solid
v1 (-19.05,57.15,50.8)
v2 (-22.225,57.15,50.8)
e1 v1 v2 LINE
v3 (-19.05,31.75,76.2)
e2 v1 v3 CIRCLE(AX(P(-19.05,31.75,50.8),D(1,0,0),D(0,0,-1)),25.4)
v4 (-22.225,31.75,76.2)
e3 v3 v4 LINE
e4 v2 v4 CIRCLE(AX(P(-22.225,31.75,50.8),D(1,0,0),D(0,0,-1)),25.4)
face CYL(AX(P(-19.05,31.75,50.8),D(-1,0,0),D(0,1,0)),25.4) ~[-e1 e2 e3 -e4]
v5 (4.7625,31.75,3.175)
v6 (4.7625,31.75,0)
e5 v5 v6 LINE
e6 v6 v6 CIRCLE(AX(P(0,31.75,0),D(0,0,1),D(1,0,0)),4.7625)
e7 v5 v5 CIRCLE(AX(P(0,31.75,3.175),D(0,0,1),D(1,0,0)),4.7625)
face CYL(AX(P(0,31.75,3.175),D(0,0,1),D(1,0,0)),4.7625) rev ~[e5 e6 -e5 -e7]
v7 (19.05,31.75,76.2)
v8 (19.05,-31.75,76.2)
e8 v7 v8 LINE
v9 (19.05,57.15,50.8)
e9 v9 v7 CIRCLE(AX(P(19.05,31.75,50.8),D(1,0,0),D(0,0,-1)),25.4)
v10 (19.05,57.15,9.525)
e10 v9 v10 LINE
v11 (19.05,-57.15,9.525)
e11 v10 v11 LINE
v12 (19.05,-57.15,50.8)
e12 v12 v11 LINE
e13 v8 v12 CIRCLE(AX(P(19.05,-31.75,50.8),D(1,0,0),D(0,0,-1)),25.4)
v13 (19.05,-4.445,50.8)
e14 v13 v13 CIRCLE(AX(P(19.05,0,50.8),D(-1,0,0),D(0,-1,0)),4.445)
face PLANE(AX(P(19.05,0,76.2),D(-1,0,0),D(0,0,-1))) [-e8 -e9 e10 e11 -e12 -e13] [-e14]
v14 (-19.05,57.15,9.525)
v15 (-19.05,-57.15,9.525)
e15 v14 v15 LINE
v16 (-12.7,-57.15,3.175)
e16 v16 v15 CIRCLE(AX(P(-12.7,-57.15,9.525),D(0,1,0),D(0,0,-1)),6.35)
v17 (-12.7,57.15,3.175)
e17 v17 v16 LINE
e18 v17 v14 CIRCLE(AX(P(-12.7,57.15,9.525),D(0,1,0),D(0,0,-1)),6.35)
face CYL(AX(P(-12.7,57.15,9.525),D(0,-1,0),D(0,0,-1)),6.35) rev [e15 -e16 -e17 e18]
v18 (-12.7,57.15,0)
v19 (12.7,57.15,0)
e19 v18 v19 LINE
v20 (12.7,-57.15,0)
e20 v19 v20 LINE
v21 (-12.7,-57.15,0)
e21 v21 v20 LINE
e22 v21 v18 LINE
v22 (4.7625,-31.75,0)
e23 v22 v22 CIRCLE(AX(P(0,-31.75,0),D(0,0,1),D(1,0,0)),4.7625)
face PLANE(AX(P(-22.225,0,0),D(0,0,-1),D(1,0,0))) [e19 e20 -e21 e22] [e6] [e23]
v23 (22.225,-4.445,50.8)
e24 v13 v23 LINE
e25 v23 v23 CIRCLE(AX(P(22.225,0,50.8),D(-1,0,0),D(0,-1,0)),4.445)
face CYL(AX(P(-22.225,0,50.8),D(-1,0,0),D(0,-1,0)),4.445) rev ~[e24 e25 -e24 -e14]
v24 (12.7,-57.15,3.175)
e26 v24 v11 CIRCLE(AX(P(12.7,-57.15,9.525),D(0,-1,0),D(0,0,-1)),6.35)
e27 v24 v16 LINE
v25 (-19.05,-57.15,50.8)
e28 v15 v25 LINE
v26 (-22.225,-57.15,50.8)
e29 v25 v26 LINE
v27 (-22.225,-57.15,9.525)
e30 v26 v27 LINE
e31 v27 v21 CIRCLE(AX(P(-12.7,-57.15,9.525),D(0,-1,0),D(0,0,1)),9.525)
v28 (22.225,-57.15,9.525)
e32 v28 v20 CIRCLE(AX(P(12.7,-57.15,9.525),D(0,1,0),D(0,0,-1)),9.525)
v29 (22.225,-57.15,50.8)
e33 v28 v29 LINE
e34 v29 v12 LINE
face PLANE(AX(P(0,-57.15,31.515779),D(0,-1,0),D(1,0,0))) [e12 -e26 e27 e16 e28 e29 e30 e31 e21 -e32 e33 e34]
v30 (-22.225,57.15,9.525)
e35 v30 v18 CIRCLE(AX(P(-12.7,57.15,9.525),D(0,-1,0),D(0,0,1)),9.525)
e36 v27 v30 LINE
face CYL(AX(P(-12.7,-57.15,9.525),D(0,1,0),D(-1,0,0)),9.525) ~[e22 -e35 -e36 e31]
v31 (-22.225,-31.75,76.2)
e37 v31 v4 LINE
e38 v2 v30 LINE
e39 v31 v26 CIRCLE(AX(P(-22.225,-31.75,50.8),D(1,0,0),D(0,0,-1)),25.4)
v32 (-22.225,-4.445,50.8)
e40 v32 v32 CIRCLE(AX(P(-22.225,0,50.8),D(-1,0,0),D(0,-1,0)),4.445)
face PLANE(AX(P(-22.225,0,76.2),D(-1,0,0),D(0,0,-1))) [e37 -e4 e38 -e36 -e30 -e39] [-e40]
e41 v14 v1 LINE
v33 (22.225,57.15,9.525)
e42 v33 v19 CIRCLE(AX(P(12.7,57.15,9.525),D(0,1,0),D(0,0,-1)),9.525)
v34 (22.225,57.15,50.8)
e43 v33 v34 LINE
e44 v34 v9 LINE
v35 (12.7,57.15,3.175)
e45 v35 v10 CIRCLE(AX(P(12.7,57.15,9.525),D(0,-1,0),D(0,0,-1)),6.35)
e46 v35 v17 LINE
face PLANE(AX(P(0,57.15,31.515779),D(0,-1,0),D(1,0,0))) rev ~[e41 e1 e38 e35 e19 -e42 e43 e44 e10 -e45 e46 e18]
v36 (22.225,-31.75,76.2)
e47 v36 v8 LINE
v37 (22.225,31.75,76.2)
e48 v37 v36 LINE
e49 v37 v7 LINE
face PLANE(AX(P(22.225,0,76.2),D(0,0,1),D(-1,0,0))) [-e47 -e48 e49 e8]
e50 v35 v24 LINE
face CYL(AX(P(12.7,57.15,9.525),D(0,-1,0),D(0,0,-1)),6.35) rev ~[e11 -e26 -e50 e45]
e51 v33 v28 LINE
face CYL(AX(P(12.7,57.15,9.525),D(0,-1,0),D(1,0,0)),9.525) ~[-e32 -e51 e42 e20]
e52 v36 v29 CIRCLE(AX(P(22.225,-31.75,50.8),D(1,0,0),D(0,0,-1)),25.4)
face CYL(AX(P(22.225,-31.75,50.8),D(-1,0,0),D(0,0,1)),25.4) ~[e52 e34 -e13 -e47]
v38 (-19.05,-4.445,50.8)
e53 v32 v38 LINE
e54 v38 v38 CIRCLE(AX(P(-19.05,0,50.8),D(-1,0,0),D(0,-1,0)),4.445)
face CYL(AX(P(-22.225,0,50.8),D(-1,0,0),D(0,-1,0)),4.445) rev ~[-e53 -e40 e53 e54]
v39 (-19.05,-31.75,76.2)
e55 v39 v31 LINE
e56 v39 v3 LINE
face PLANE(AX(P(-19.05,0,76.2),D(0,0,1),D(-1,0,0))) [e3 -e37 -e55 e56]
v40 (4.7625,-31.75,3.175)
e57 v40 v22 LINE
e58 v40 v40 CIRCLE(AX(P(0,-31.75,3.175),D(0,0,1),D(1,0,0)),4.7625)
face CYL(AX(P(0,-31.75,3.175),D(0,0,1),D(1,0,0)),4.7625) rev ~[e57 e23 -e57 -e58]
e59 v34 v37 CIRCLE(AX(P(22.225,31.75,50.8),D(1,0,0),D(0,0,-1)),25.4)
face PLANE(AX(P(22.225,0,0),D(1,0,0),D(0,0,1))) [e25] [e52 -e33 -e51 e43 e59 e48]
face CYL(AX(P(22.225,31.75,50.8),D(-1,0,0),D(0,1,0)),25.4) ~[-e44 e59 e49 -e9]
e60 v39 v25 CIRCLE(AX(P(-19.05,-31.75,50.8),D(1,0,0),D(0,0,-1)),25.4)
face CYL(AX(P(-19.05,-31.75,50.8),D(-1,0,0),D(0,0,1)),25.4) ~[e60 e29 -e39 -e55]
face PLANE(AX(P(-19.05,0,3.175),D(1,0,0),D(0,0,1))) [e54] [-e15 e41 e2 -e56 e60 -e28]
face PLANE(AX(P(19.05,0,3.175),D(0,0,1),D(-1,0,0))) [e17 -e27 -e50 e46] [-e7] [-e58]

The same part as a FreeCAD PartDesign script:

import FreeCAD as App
import Part
import Sketcher
Q = App.Units.Quantity


def edges_at(feature, points):
    """Names of the edges that pass closest to the given points."""
    edges = feature.Shape.Edges
    near = lambda p: min(range(len(edges)), key=lambda i: edges[i].distToShape(Part.Vertex(*p))[0])
    return sorted({f"Edge{near(p) + 1}" for p in points})

doc = App.newDocument("Part")
params = doc.addObject("Spreadsheet::Sheet", "Params")
for row, (alias, value) in enumerate([
    ("sketch1_height", "3 in"),
    ("sketch1_width", "1.5 in"),
    ("sketch1_width2", "1.75 in"),
    ("sketch1_height2", "2.875 in"),
    ("pad1_length", "2.25 in"),
    ("pad1_length2", "2.25 in"),
    ("fillet_radius", "0.25 in"),
    ("fillet2_radius", "0.25 in"),
    ("fillet3_radius", "0.375 in"),
    ("sketch2_diameter", "0.35 in"),
    ("sketch3_diameter", "0.375 in"),
    ("fillet4_radius", "1 in"),
], start=1):
    params.set(f"A{row}", alias)
    params.set(f"B{row}", "=" + value)
    params.setAlias(f"B{row}", alias)

body = doc.addObject("PartDesign::Body", "Body")

sketch1 = body.newObject("Sketcher::SketchObject", "Sketch")
sketch1.AttachmentSupport = (doc.getObject("XZ_Plane"), [""])
sketch1.MapMode = "FlatFace"
sketch1.addGeometry([
    Part.LineSegment(App.Vector(-22.2, 0, 0), App.Vector(22.2, 0, 0)),
    Part.LineSegment(App.Vector(22.2, 0, 0), App.Vector(22.2, 76.2, 0)),
    Part.LineSegment(App.Vector(22.2, 76.2, 0), App.Vector(19.1, 76.2, 0)),
    Part.LineSegment(App.Vector(19.1, 76.2, 0), App.Vector(19.1, 3.2, 0)),
    Part.LineSegment(App.Vector(19.1, 3.2, 0), App.Vector(-19.1, 3.2, 0)),
    Part.LineSegment(App.Vector(-19.1, 3.2, 0), App.Vector(-19.1, 76.2, 0)),
    Part.LineSegment(App.Vector(-19.1, 76.2, 0), App.Vector(-22.2, 76.2, 0)),
    Part.LineSegment(App.Vector(-22.2, 76.2, 0), App.Vector(-22.2, 0, 0)),
], False)
sketch1.addConstraint([
    Sketcher.Constraint("Coincident", 0, 2, 1, 1),
    Sketcher.Constraint("Coincident", 1, 2, 2, 1),
    Sketcher.Constraint("Coincident", 2, 2, 3, 1),
    Sketcher.Constraint("Coincident", 3, 2, 4, 1),
    Sketcher.Constraint("Coincident", 4, 2, 5, 1),
    Sketcher.Constraint("Coincident", 5, 2, 6, 1),
    Sketcher.Constraint("Coincident", 6, 2, 7, 1),
    Sketcher.Constraint("Coincident", 7, 2, 0, 1),
    Sketcher.Constraint("Horizontal", 0),
    Sketcher.Constraint("Vertical", 1),
    Sketcher.Constraint("Horizontal", 2),
    Sketcher.Constraint("Vertical", 3),
    Sketcher.Constraint("Horizontal", 4),
    Sketcher.Constraint("Vertical", 5),
    Sketcher.Constraint("Horizontal", 6),
    Sketcher.Constraint("Vertical", 7),
    Sketcher.Constraint("Symmetric", 0, 2, 7, 2, -1, 1),
    Sketcher.Constraint("Symmetric", 2, 2, 5, 2, -2),
    Sketcher.Constraint("DistanceY", 1, 1, 1, 2, Q("3 in")),
    Sketcher.Constraint("DistanceX", 4, 2, 4, 1, Q("1.5 in")),
    Sketcher.Constraint("DistanceX", 0, 1, 0, 2, Q("1.75 in")),
    Sketcher.Constraint("DistanceY", 3, 2, 3, 1, Q("2.875 in")),
])
sketch1.setExpression("Constraints[18]", "Params.sketch1_height")
sketch1.setExpression("Constraints[19]", "Params.sketch1_width")
sketch1.setExpression("Constraints[20]", "Params.sketch1_width2")
sketch1.setExpression("Constraints[21]", "Params.sketch1_height2")
pad1 = body.newObject("PartDesign::Pad", "Pad")
pad1.Profile = sketch1
pad1.Type = "TwoLengths"
pad1.setExpression("Length", "Params.pad1_length")
pad1.setExpression("Length2", "Params.pad1_length2")
doc.recompute()

fillet = body.newObject("PartDesign::Fillet", "Fillet")
fillet.Base = (pad1, edges_at(pad1, [(19.05, 0, 3.175)]))
fillet.setExpression("Radius", "Params.fillet_radius")
doc.recompute()

fillet2 = body.newObject("PartDesign::Fillet", "Fillet001")
fillet2.Base = (fillet, edges_at(fillet, [(-19.05, 0, 3.175)]))
fillet2.setExpression("Radius", "Params.fillet2_radius")
doc.recompute()

fillet3 = body.newObject("PartDesign::Fillet", "Fillet002")
fillet3.Base = (fillet2, edges_at(fillet2, [(22.225, 0, 0), (-22.225, 0, 0)]))
fillet3.setExpression("Radius", "Params.fillet3_radius")

sketch2 = body.newObject("Sketcher::SketchObject", "Sketch001")
sketch2.AttachmentSupport = (doc.getObject("YZ_Plane"), [""])
sketch2.MapMode = "FlatFace"
sketch2.AttachmentOffset = App.Placement(App.Vector(0, 0, -0.875 * 25.4), App.Rotation())
sketch2.addGeometry(Part.Circle(App.Vector(0, 50.8, 0), App.Vector(0, 0, 1), 4.4), False)
sketch2.addConstraint([
    Sketcher.Constraint("PointOnObject", 0, 3, -2),
    Sketcher.Constraint("Diameter", 0, Q("0.35 in")),
    Sketcher.Constraint("DistanceY", -1, 1, 0, 3, Q("2 in")),
])
sketch2.setExpression("Constraints[1]", "Params.sketch2_diameter")
pocket1 = body.newObject("PartDesign::Pocket", "Pocket")
pocket1.Profile = sketch2
pocket1.Type = "ThroughAll"
pocket1.Midplane = True

sketch3 = body.newObject("Sketcher::SketchObject", "Sketch002")
sketch3.AttachmentSupport = (doc.getObject("XY_Plane"), [""])
sketch3.MapMode = "FlatFace"
sketch3.AttachmentOffset = App.Placement(App.Vector(0, 0, 0.125 * 25.4), App.Rotation())
sketch3.addGeometry([
    Part.Circle(App.Vector(0, 31.8, 0), App.Vector(0, 0, 1), 4.8),
    Part.Circle(App.Vector(0, -31.8, 0), App.Vector(0, 0, 1), 4.8),
], False)
sketch3.addConstraint([
    Sketcher.Constraint("Equal", 0, 1),
    Sketcher.Constraint("Symmetric", 0, 3, 1, 3, -1, 1),
    Sketcher.Constraint("PointOnObject", 0, 3, -2),
    Sketcher.Constraint("Diameter", 0, Q("0.375 in")),
    Sketcher.Constraint("DistanceY", 1, 3, 0, 3, Q("2.5 in")),
])
sketch3.setExpression("Constraints[3]", "Params.sketch3_diameter")
pocket2 = body.newObject("PartDesign::Pocket", "Pocket001")
pocket2.Profile = sketch3
pocket2.Type = "ThroughAll"
pocket2.Midplane = True
doc.recompute()

fillet4 = body.newObject("PartDesign::Fillet", "Fillet003")
fillet4.Base = (pocket2, edges_at(pocket2, [
    (20.637, 57.15, 76.2),
    (-20.637, 57.15, 76.2),
    (20.637, -57.15, 76.2),
    (-20.637, -57.15, 76.2),
]))
fillet4.setExpression("Radius", "Params.fillet4_radius")

doc.recompute()
